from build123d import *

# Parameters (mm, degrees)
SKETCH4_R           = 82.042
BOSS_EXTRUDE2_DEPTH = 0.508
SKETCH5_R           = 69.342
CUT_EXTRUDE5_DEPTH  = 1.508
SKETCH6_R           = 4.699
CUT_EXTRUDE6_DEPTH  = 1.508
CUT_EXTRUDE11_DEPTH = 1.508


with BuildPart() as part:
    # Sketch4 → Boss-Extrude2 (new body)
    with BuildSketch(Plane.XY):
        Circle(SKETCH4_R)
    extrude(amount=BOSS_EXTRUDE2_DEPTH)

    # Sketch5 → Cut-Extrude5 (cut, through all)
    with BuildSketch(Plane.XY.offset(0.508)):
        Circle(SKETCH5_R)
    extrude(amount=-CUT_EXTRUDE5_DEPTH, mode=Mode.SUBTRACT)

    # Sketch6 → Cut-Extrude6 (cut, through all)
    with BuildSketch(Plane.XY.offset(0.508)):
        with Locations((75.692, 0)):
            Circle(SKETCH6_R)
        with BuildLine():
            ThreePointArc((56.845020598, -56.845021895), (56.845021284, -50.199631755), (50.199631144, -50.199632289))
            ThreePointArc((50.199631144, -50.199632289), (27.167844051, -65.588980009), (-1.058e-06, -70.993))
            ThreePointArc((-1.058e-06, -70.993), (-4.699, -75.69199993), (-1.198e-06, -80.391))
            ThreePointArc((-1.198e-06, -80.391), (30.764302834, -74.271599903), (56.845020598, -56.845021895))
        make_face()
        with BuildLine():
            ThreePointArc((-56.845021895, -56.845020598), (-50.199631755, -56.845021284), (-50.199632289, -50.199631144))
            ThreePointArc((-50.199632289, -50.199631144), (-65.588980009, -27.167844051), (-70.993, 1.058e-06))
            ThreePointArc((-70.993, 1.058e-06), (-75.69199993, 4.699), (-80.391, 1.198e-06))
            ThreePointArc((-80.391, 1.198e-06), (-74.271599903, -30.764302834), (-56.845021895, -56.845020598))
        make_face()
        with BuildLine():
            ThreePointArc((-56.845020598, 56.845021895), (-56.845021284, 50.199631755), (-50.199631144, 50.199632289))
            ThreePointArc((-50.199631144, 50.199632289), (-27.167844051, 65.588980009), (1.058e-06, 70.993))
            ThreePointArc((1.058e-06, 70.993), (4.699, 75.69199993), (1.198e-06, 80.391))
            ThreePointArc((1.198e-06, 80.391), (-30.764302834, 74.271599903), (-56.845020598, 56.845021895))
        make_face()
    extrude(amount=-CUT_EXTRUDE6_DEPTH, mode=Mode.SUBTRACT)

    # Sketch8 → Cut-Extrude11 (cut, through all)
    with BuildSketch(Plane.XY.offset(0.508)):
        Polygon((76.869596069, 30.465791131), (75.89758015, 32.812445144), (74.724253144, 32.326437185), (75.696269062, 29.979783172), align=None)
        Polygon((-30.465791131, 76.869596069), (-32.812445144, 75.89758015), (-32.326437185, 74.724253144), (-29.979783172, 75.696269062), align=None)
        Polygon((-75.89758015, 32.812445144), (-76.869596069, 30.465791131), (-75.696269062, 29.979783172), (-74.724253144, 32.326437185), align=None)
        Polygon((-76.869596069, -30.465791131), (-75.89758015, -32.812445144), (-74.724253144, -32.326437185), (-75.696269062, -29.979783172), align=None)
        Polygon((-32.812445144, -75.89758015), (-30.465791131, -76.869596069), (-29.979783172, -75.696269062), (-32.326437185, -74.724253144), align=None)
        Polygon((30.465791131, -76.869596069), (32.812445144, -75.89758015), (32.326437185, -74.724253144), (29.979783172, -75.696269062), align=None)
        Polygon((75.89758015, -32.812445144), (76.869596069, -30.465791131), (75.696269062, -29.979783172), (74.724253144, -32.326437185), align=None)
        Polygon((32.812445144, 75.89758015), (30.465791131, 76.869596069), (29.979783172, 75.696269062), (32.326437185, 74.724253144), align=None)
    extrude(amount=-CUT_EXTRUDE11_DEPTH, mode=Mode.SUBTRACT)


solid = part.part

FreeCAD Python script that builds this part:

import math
import FreeCAD as App
import Part
import Sketcher
Q = App.Units.Quantity

doc = App.newDocument("Part")
body = doc.addObject("PartDesign::Body", "Body")

# Sketch on XY plane
sketch1 = body.newObject("Sketcher::SketchObject", "Sketch")
sketch1.AttachmentSupport = (doc.getObject("XY_Plane"), [""])
sketch1.MapMode = "FlatFace"
sketch1.addGeometry(Part.Circle(App.Vector(0, 0, 0), App.Vector(0, 0, 1), 82.042), False)
sketch1.addConstraint([
    Sketcher.Constraint("Coincident", 0, 3, -1, 1),
    Sketcher.Constraint("Diameter", 0, Q("6.46 in")),
])
pad1 = body.newObject("PartDesign::Pad", "Pad")
pad1.Profile = sketch1
pad1.Length = Q("0.02 in")

# Sketch on XY plane
sketch2 = body.newObject("Sketcher::SketchObject", "Sketch001")
sketch2.AttachmentSupport = (doc.getObject("XY_Plane"), [""])
sketch2.MapMode = "FlatFace"
sketch2.AttachmentOffset = App.Placement(App.Vector(0, 0, 0.02 * 25.4), App.Rotation())
sketch2.addGeometry(Part.Circle(App.Vector(0, 0, 0), App.Vector(0, 0, 1), 69.342), False)
sketch2.addConstraint([
    Sketcher.Constraint("Coincident", 0, 3, -1, 1),
    Sketcher.Constraint("Diameter", 0, Q("5.46 in")),
])
pocket1 = body.newObject("PartDesign::Pocket", "Pocket")
pocket1.Profile = sketch2
pocket1.Type = "ThroughAll"

# Sketch on XY plane
sketch3 = body.newObject("Sketcher::SketchObject", "Sketch002")
sketch3.AttachmentSupport = (doc.getObject("XY_Plane"), [""])
sketch3.MapMode = "FlatFace"
sketch3.AttachmentOffset = App.Placement(App.Vector(0, 0, 0.02 * 25.4), App.Rotation())
sketch3.addGeometry([
    Part.Circle(App.Vector(75.692, 0, 0), App.Vector(0, 0, 1), 4.699),  # 0
    Part.ArcOfCircle(Part.Circle(App.Vector(53.522326, -53.522326, 0), App.Vector(0, 0, 1), 4.699), math.radians(-45.000011), math.radians(135.00001)),  # 1
    Part.ArcOfCircle(Part.Circle(App.Vector(0, 0, 0), App.Vector(0, 0, 1), 70.993), math.radians(-90.000001), math.radians(-45.000001)),  # 2
    Part.ArcOfCircle(Part.Circle(App.Vector(0, -75.692, 0), App.Vector(0, 0, 1), 4.699), math.radians(90.000013), math.radians(269.999985)),  # 3
    Part.ArcOfCircle(Part.Circle(App.Vector(0, 0, 0), App.Vector(0, 0, 1), 80.391), math.radians(-90.000001), math.radians(-45.000001)),  # 4
    Part.ArcOfCircle(Part.Circle(App.Vector(-53.522326, -53.522326, 0), App.Vector(0, 0, 1), 4.699), math.radians(-135.000011), math.radians(45.00001)),  # 5
    Part.ArcOfCircle(Part.Circle(App.Vector(0, 0, 0), App.Vector(0, 0, 1), 70.993), math.radians(179.999999), math.radians(224.999999)),  # 6
    Part.ArcOfCircle(Part.Circle(App.Vector(-75.692, 0, 0), App.Vector(0, 0, 1), 4.699), math.radians(0.000013), math.radians(179.999985)),  # 7
    Part.ArcOfCircle(Part.Circle(App.Vector(0, 0, 0), App.Vector(0, 0, 1), 80.391), math.radians(179.999999), math.radians(224.999999)),  # 8
    Part.ArcOfCircle(Part.Circle(App.Vector(-53.522326, 53.522326, 0), App.Vector(0, 0, 1), 4.699), math.radians(134.999989), math.radians(315.00001)),  # 9
    Part.ArcOfCircle(Part.Circle(App.Vector(0, 0, 0), App.Vector(0, 0, 1), 70.993), math.radians(89.999999), math.radians(134.999999)),  # 10
    Part.ArcOfCircle(Part.Circle(App.Vector(0, 75.692, 0), App.Vector(0, 0, 1), 4.699), math.radians(-89.999987), math.radians(89.999985)),  # 11
    Part.ArcOfCircle(Part.Circle(App.Vector(0, 0, 0), App.Vector(0, 0, 1), 80.391), math.radians(89.999999), math.radians(134.999999)),  # 12
], False)
sketch3.addConstraint([
    Sketcher.Constraint("Tangent", 1, 2, 2, 2),
    Sketcher.Constraint("Tangent", 2, 1, 3, 1),
    Sketcher.Constraint("Tangent", 3, 2, 4, 1),
    Sketcher.Constraint("Tangent", 4, 2, 1, 1),
    Sketcher.Constraint("Tangent", 5, 2, 6, 2),
    Sketcher.Constraint("Tangent", 6, 1, 7, 1),
    Sketcher.Constraint("Tangent", 7, 2, 8, 1),
    Sketcher.Constraint("Tangent", 8, 2, 5, 1),
    Sketcher.Constraint("Tangent", 9, 2, 10, 2),
    Sketcher.Constraint("Tangent", 10, 1, 11, 1),
    Sketcher.Constraint("Tangent", 11, 2, 12, 1),
    Sketcher.Constraint("Tangent", 12, 2, 9, 1),
    Sketcher.Constraint("Coincident", 2, 3, -1, 1),
    Sketcher.Constraint("Coincident", 4, 3, -1, 1),
    Sketcher.Constraint("Coincident", 6, 3, -1, 1),
    Sketcher.Constraint("Coincident", 8, 3, -1, 1),
    Sketcher.Constraint("Coincident", 10, 3, -1, 1),
    Sketcher.Constraint("Coincident", 12, 3, -1, 1),
    Sketcher.Constraint("Equal", 0, 1),
    Sketcher.Constraint("Equal", 3, 5),
    Sketcher.Constraint("Equal", 2, 6),
    Sketcher.Constraint("Equal", 7, 9),
    Sketcher.Constraint("Equal", 6, 10),
    Sketcher.Constraint("Symmetric", 0, 3, 7, 3, -1, 1),
    Sketcher.Constraint("PointOnObject", 0, 3, -1),
    Sketcher.Constraint("PointOnObject", 3, 3, -2),
    Sketcher.Constraint("PointOnObject", 11, 3, -2),
    Sketcher.Constraint("Horizontal", 1, 3, 5, 3),
    Sketcher.Constraint("Vertical", 5, 3, 9, 3),
    Sketcher.Constraint("Diameter", 0, Q("0.37 in")),
    Sketcher.Constraint("Radius", 2, Q("2.795 in")),
    Sketcher.Constraint("DistanceX", -1, 1, 1, 2, Q("50.199631 mm")),
])
pocket2 = body.newObject("PartDesign::Pocket", "Pocket001")
pocket2.Profile = sketch3
pocket2.Type = "ThroughAll"

# Sketch on XY plane
sketch4 = body.newObject("Sketcher::SketchObject", "Sketch003")
sketch4.AttachmentSupport = (doc.getObject("XY_Plane"), [""])
sketch4.MapMode = "FlatFace"
sketch4.AttachmentOffset = App.Placement(App.Vector(0, 0, 0.02 * 25.4), App.Rotation())
sketch4.addGeometry([
    Part.LineSegment(App.Vector(76.869596, 30.465791, 0), App.Vector(75.89758, 32.812445, 0)),  # 0
    Part.LineSegment(App.Vector(75.89758, 32.812445, 0), App.Vector(74.724253, 32.326437, 0)),  # 1
    Part.LineSegment(App.Vector(74.724253, 32.326437, 0), App.Vector(75.696269, 29.979783, 0)),  # 2
    Part.LineSegment(App.Vector(75.696269, 29.979783, 0), App.Vector(76.869596, 30.465791, 0)),  # 3
    Part.LineSegment(App.Vector(-30.465791, 76.869596, 0), App.Vector(-32.812445, 75.89758, 0)),  # 4
    Part.LineSegment(App.Vector(-32.812445, 75.89758, 0), App.Vector(-32.326437, 74.724253, 0)),  # 5
    Part.LineSegment(App.Vector(-32.326437, 74.724253, 0), App.Vector(-29.979783, 75.696269, 0)),  # 6
    Part.LineSegment(App.Vector(-29.979783, 75.696269, 0), App.Vector(-30.465791, 76.869596, 0)),  # 7
    Part.LineSegment(App.Vector(-75.89758, 32.812445, 0), App.Vector(-76.869596, 30.465791, 0)),  # 8
    Part.LineSegment(App.Vector(-76.869596, 30.465791, 0), App.Vector(-75.696269, 29.979783, 0)),  # 9
    Part.LineSegment(App.Vector(-75.696269, 29.979783, 0), App.Vector(-74.724253, 32.326437, 0)),  # 10
    Part.LineSegment(App.Vector(-74.724253, 32.326437, 0), App.Vector(-75.89758, 32.812445, 0)),  # 11
    Part.LineSegment(App.Vector(-76.869596, -30.465791, 0), App.Vector(-75.89758, -32.812445, 0)),  # 12
    Part.LineSegment(App.Vector(-75.89758, -32.812445, 0), App.Vector(-74.724253, -32.326437, 0)),  # 13
    Part.LineSegment(App.Vector(-74.724253, -32.326437, 0), App.Vector(-75.696269, -29.979783, 0)),  # 14
    Part.LineSegment(App.Vector(-75.696269, -29.979783, 0), App.Vector(-76.869596, -30.465791, 0)),  # 15
    Part.LineSegment(App.Vector(-32.812445, -75.89758, 0), App.Vector(-30.465791, -76.869596, 0)),  # 16
    Part.LineSegment(App.Vector(-30.465791, -76.869596, 0), App.Vector(-29.979783, -75.696269, 0)),  # 17
    Part.LineSegment(App.Vector(-29.979783, -75.696269, 0), App.Vector(-32.326437, -74.724253, 0)),  # 18
    Part.LineSegment(App.Vector(-32.326437, -74.724253, 0), App.Vector(-32.812445, -75.89758, 0)),  # 19
    Part.LineSegment(App.Vector(30.465791, -76.869596, 0), App.Vector(32.812445, -75.89758, 0)),  # 20
    Part.LineSegment(App.Vector(32.812445, -75.89758, 0), App.Vector(32.326437, -74.724253, 0)),  # 21
    Part.LineSegment(App.Vector(32.326437, -74.724253, 0), App.Vector(29.979783, -75.696269, 0)),  # 22
    Part.LineSegment(App.Vector(29.979783, -75.696269, 0), App.Vector(30.465791, -76.869596, 0)),  # 23
    Part.LineSegment(App.Vector(75.89758, -32.812445, 0), App.Vector(76.869596, -30.465791, 0)),  # 24
    Part.LineSegment(App.Vector(76.869596, -30.465791, 0), App.Vector(75.696269, -29.979783, 0)),  # 25
    Part.LineSegment(App.Vector(75.696269, -29.979783, 0), App.Vector(74.724253, -32.326437, 0)),  # 26
    Part.LineSegment(App.Vector(74.724253, -32.326437, 0), App.Vector(75.89758, -32.812445, 0)),  # 27
    Part.LineSegment(App.Vector(32.812445, 75.89758, 0), App.Vector(30.465791, 76.869596, 0)),  # 28
    Part.LineSegment(App.Vector(30.465791, 76.869596, 0), App.Vector(29.979783, 75.696269, 0)),  # 29
    Part.LineSegment(App.Vector(29.979783, 75.696269, 0), App.Vector(32.326437, 74.724253, 0)),  # 30
    Part.LineSegment(App.Vector(32.326437, 74.724253, 0), App.Vector(32.812445, 75.89758, 0)),  # 31
], False)
sketch4.addConstraint([
    Sketcher.Constraint("Coincident", 0, 2, 1, 1),
    Sketcher.Constraint("Coincident", 1, 2, 2, 1),
    Sketcher.Constraint("Coincident", 2, 2, 3, 1),
    Sketcher.Constraint("Coincident", 3, 2, 0, 1),
    Sketcher.Constraint("Coincident", 4, 2, 5, 1),
    Sketcher.Constraint("Coincident", 5, 2, 6, 1),
    Sketcher.Constraint("Coincident", 6, 2, 7, 1),
    Sketcher.Constraint("Coincident", 7, 2, 4, 1),
    Sketcher.Constraint("Coincident", 8, 2, 9, 1),
    Sketcher.Constraint("Coincident", 9, 2, 10, 1),
    Sketcher.Constraint("Coincident", 10, 2, 11, 1),
    Sketcher.Constraint("Coincident", 11, 2, 8, 1),
    Sketcher.Constraint("Coincident", 12, 2, 13, 1),
    Sketcher.Constraint("Coincident", 13, 2, 14, 1),
    Sketcher.Constraint("Coincident", 14, 2, 15, 1),
    Sketcher.Constraint("Coincident", 15, 2, 12, 1),
    Sketcher.Constraint("Coincident", 16, 2, 17, 1),
    Sketcher.Constraint("Coincident", 17, 2, 18, 1),
    Sketcher.Constraint("Coincident", 18, 2, 19, 1),
    Sketcher.Constraint("Coincident", 19, 2, 16, 1),
    Sketcher.Constraint("Coincident", 20, 2, 21, 1),
    Sketcher.Constraint("Coincident", 21, 2, 22, 1),
    Sketcher.Constraint("Coincident", 22, 2, 23, 1),
    Sketcher.Constraint("Coincident", 23, 2, 20, 1),
    Sketcher.Constraint("Coincident", 24, 2, 25, 1),
    Sketcher.Constraint("Coincident", 25, 2, 26, 1),
    Sketcher.Constraint("Coincident", 26, 2, 27, 1),
    Sketcher.Constraint("Coincident", 27, 2, 24, 1),
    Sketcher.Constraint("Coincident", 28, 2, 29, 1),
    Sketcher.Constraint("Coincident", 29, 2, 30, 1),
    Sketcher.Constraint("Coincident", 30, 2, 31, 1),
    Sketcher.Constraint("Coincident", 31, 2, 28, 1),
    Sketcher.Constraint("Symmetric", 0, 2, 12, 2, -1, 1),
    Sketcher.Constraint("Symmetric", 1, 2, 13, 2, -1, 1),
    Sketcher.Constraint("Symmetric", 2, 2, 14, 2, -1, 1),
    Sketcher.Constraint("Symmetric", 3, 2, 15, 2, -1, 1),
    Sketcher.Constraint("Symmetric", 4, 2, 20, 2, -1, 1),
    Sketcher.Constraint("Symmetric", 5, 2, 21, 2, -1, 1),
    Sketcher.Constraint("Symmetric", 6, 2, 22, 2, -1, 1),
    Sketcher.Constraint("Symmetric", 7, 2, 23, 2, -1, 1),
    Sketcher.Constraint("Symmetric", 8, 2, 24, 2, -1, 1),
    Sketcher.Constraint("Symmetric", 9, 2, 25, 2, -1, 1),
    Sketcher.Constraint("Symmetric", 10, 2, 26, 2, -1, 1),
    Sketcher.Constraint("Symmetric", 11, 2, 27, 2, -1, 1),
    Sketcher.Constraint("Symmetric", 16, 2, 28, 2, -1, 1),
    Sketcher.Constraint("Symmetric", 17, 2, 29, 2, -1, 1),
    Sketcher.Constraint("Symmetric", 18, 2, 30, 2, -1, 1),
    Sketcher.Constraint("Symmetric", 19, 2, 31, 2, -1, 1),
    Sketcher.Constraint("Symmetric", 3, 2, 8, 2, -2),
    Sketcher.Constraint("Symmetric", 2, 2, 9, 2, -2),
    Sketcher.Constraint("Symmetric", 1, 2, 10, 2, -2),
    Sketcher.Constraint("Symmetric", 0, 2, 11, 2, -2),
    Sketcher.Constraint("Symmetric", 19, 2, 20, 2, -2),
    Sketcher.Constraint("Symmetric", 18, 2, 21, 2, -2),
    Sketcher.Constraint("Symmetric", 17, 2, 22, 2, -2),
    Sketcher.Constraint("Symmetric", 16, 2, 23, 2, -2),
    Sketcher.Constraint("Perpendicular", 0, 1),
    Sketcher.Constraint("Perpendicular", 1, 2),
    Sketcher.Constraint("Perpendicular", 2, 3),
    Sketcher.Constraint("Parallel", 3, 4),
    Sketcher.Constraint("Perpendicular", 4, 5),
    Sketcher.Constraint("Perpendicular", 5, 6),
    Sketcher.Constraint("Perpendicular", 6, 7),
    Sketcher.Constraint("Equal", 2, 4),
    Sketcher.Constraint("Equal", 3, 5),
    Sketcher.Constraint("Distance", 0, Q("0.1 in")),
    Sketcher.Constraint("Angle", 0, Q("112.5 deg")),
    Sketcher.Constraint("Distance", 1, Q("0.05 in")),
    Sketcher.Constraint("DistanceX", 6, 2, 0, 2, Q("4.1684001 in")),
    Sketcher.Constraint("DistanceY", 20, 2, 2, 2, Q("4.1684001 in")),
    Sketcher.Constraint("DistanceX", -1, 1, 0, 2, Q("75.89758 mm")),
    Sketcher.Constraint("DistanceY", -1, 1, 3, 2, Q("30.465791 mm")),
])
pocket3 = body.newObject("PartDesign::Pocket", "Pocket002")
pocket3.Profile = sketch4
pocket3.Type = "ThroughAll"

doc.recompute()
